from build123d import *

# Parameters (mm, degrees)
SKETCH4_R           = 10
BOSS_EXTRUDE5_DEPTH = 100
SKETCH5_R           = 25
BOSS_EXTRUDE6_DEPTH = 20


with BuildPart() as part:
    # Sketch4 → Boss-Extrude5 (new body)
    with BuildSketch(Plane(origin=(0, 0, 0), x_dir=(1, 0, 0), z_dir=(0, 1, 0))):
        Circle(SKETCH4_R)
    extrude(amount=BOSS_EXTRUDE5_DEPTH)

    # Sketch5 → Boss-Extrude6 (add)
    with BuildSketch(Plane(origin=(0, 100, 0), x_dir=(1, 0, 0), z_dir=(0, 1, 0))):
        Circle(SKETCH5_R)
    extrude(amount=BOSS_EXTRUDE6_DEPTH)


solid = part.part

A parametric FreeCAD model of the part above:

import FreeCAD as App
import Part
import Sketcher
from FreeCAD import Vector

doc = App.newDocument("Part")
params = doc.addObject("Spreadsheet::Sheet", "Params")
for row, (alias, value) in enumerate([
    ("sketch1_diameter", "20 mm"),
    ("pad1_length", "100 mm"),
    ("sketch2_diameter", "50 mm"),
    ("pad2_length", "20 mm"),
], start=1):
    params.set(f"A{row}", alias)
    params.set(f"B{row}", "=" + value)
    params.setAlias(f"B{row}", alias)

body = doc.addObject("PartDesign::Body", "Body")

sketch1 = body.newObject("Sketcher::SketchObject", "Sketch")
sketch1.AttachmentSupport = (doc.getObject("XZ_Plane"), [""])
sketch1.MapMode = "FlatFace"
sketch1.addGeometry(Part.Circle(Vector(0, 0, 0), Vector(0, 0, 1), 10), False)
sketch1.addConstraint([
    Sketcher.Constraint("Coincident", 0, 3, -1, 1),
    Sketcher.Constraint("Diameter", 0, 20.0),
])
sketch1.setExpression("Constraints[1]", "Params.sketch1_diameter")
pad1 = body.newObject("PartDesign::Pad", "Pad")
pad1.Profile = sketch1
pad1.setExpression("Length", "Params.pad1_length")
pad1.Reversed = True

sketch2 = body.newObject("Sketcher::SketchObject", "Sketch001")
sketch2.AttachmentSupport = (doc.getObject("XZ_Plane"), [""])
sketch2.MapMode = "FlatFace"
sketch2.AttachmentOffset = App.Placement(Vector(0, 0, -100), App.Rotation())
sketch2.addGeometry(Part.Circle(Vector(0, 0, 0), Vector(0, 0, 1), 25), False)
sketch2.addConstraint([
    Sketcher.Constraint("Coincident", 0, 3, -1, 1),
    Sketcher.Constraint("Diameter", 0, 50.0),
])
sketch2.setExpression("Constraints[1]", "Params.sketch2_diameter")
pad2 = body.newObject("PartDesign::Pad", "Pad001")
pad2.Profile = sketch2
pad2.setExpression("Length", "Params.pad2_length")
pad2.Reversed = True

doc.recompute()
